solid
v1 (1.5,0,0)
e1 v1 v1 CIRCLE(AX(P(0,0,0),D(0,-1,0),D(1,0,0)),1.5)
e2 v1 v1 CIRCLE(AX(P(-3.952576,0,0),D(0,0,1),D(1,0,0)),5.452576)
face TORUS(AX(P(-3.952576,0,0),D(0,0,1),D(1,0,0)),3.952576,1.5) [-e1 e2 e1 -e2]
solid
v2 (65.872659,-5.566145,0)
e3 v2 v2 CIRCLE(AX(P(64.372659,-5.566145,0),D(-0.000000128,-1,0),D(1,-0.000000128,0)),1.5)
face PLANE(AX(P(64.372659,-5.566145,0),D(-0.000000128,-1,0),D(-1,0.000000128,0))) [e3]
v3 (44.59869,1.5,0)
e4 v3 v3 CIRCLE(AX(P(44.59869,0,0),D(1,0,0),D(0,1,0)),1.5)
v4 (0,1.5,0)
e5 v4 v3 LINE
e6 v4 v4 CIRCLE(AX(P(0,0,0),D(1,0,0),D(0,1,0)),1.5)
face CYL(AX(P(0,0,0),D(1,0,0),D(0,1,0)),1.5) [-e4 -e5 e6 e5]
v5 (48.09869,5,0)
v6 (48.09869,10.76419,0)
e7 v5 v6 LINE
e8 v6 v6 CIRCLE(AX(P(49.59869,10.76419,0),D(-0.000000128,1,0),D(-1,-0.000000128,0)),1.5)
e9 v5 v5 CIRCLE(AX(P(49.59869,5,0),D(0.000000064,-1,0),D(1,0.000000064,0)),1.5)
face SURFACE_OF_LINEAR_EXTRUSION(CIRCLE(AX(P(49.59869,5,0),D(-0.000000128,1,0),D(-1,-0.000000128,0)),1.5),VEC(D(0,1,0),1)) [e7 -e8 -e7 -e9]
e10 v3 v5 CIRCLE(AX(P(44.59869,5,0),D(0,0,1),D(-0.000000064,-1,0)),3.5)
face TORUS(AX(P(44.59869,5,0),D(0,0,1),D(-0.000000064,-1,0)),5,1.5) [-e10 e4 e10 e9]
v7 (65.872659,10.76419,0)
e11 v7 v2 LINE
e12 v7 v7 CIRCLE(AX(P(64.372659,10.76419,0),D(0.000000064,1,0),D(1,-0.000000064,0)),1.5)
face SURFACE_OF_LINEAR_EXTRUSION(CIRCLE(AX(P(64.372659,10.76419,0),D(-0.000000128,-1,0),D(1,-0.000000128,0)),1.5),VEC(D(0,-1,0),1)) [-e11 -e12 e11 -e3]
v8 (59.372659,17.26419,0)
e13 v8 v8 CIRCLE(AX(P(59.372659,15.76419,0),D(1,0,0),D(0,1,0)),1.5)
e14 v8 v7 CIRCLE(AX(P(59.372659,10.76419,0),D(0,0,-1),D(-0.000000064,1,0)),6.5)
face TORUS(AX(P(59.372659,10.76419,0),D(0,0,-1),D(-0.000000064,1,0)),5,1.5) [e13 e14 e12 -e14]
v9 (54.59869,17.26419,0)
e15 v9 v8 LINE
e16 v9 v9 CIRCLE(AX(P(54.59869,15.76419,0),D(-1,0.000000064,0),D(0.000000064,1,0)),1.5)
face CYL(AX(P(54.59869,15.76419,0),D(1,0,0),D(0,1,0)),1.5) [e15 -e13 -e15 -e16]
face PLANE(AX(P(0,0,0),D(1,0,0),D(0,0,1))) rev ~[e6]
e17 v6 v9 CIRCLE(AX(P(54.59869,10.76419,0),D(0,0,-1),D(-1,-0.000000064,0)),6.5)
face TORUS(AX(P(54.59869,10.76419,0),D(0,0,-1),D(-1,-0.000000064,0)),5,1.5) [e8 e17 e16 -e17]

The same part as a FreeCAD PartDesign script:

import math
import FreeCAD as App
import Part
import Sketcher

doc = App.newDocument("Part")
body = doc.addObject("PartDesign::Body", "Body")

# Sketch on YZ plane
sketch1 = doc.addObject("Sketcher::SketchObject", "Sketch")
body.addObject(sketch1)
sketch1.AttachmentSupport = (doc.YZ_Plane, [""])
sketch1.MapMode = "FlatFace"
sketch1.addGeometry(Part.Circle(App.Vector(0, 0, 0), App.Vector(0, 0, 1), 1.5), False)
sketch1.addConstraint([
    Sketcher.Constraint("Coincident", 0, 3, -1, 1),
    Sketcher.Constraint("Diameter", 0, 3.0),
])

# Sketch on XY plane
sketch2 = doc.addObject("Sketcher::SketchObject", "Sketch001")
body.addObject(sketch2)
sketch2.AttachmentSupport = (doc.XY_Plane, [""])
sketch2.MapMode = "FlatFace"
sketch2.addGeometry([
    Part.LineSegment(App.Vector(0, 0, 0), App.Vector(44.59869, 0, 0)),  # 0
    Part.ArcOfCircle(Part.Circle(App.Vector(44.59869, 5, 0), App.Vector(0, 0, 1), 5), math.radians(-90.000004), math.radians(0.000004)),  # 1
    Part.LineSegment(App.Vector(49.59869, 5, 0), App.Vector(49.59869, 10.76419, 0)),  # 2
    Part.ArcOfCircle(Part.Circle(App.Vector(54.59869, 10.76419, 0), App.Vector(0, 0, 1), 5), math.radians(89.999996), math.radians(180.000004)),  # 3
    Part.LineSegment(App.Vector(54.59869, 15.76419, 0), App.Vector(59.372659, 15.76419, 0)),  # 4
    Part.ArcOfCircle(Part.Circle(App.Vector(59.372659, 10.76419, 0), App.Vector(0, 0, 1), 5), math.radians(-0.000004), math.radians(90.000004)),  # 5
    Part.LineSegment(App.Vector(64.372659, 10.76419, 0), App.Vector(64.372659, -5.566145, 0)),  # 6
], False)
sketch2.addConstraint([
    Sketcher.Constraint("Tangent", 0, 2, 1, 1),
    Sketcher.Constraint("Tangent", 1, 2, 2, 1),
    Sketcher.Constraint("Tangent", 2, 2, 3, 2),
    Sketcher.Constraint("Tangent", 3, 1, 4, 1),
    Sketcher.Constraint("Tangent", 4, 2, 5, 2),
    Sketcher.Constraint("Tangent", 5, 1, 6, 1),
    Sketcher.Constraint("Horizontal", 0),
    Sketcher.Constraint("Vertical", 2),
    Sketcher.Constraint("Horizontal", 4),
    Sketcher.Constraint("Vertical", 6),
    Sketcher.Constraint("Coincident", 0, 1, -1, 1),
    Sketcher.Constraint("Equal", 1, 3),
    Sketcher.Constraint("Equal", 3, 5),
    Sketcher.Constraint("Radius", 1, 5.0),
    Sketcher.Constraint("DistanceX", 0, 1, 0, 2, 44.59869),
    Sketcher.Constraint("DistanceX", 4, 1, 4, 2, 4.773969),
    Sketcher.Constraint("DistanceY", 2, 1, 2, 2, 5.76419),
    Sketcher.Constraint("DistanceY", 6, 2, 6, 1, 16.330335),
])
doc.recompute()

additivepipe = doc.addObject("PartDesign::AdditivePipe", "AdditivePipe")
body.addObject(additivepipe)
additivepipe.Profile = sketch1
additivepipe.Spine = (sketch2, ["Edge1", "Edge2", "Edge3", "Edge4", "Edge5", "Edge6", "Edge7"])
body2 = doc.addObject("PartDesign::Body", "Body001")

# Sketch on XZ plane
sketch3 = doc.addObject("Sketcher::SketchObject", "Sketch002")
body2.addObject(sketch3)
sketch3.AttachmentSupport = (doc.getObject("XZ_Plane001"), [""])
sketch3.MapMode = "FlatFace"
sketch3.addGeometry(Part.Circle(App.Vector(0, 0, 0), App.Vector(0, 0, 1), 1.5), False)
sketch3.addConstraint([
    Sketcher.Constraint("Coincident", 0, 3, -1, 1),
    Sketcher.Constraint("Diameter", 0, 3.0),
])

# Sketch on XY plane
sketch4 = doc.addObject("Sketcher::SketchObject", "Sketch003")
body2.addObject(sketch4)
sketch4.AttachmentSupport = (doc.getObject("XY_Plane001"), [""])
sketch4.MapMode = "FlatFace"
sketch4.addGeometry(Part.Circle(App.Vector(-3.952576, 0, 0), App.Vector(0, 0, 1), 3.952576), False)
sketch4.addConstraint([
    Sketcher.Constraint("PointOnObject", 0, 3, -1),
    Sketcher.Constraint("Diameter", 0, 7.905152),
    Sketcher.Constraint("DistanceX", 0, 3, -1, 1, 3.952576),
])
doc.recompute()

additivepipe2 = doc.addObject("PartDesign::AdditivePipe", "AdditivePipe001")
body2.addObject(additivepipe2)
additivepipe2.Profile = sketch3
additivepipe2.Spine = (sketch4, ["Edge1"])

doc.recompute()
